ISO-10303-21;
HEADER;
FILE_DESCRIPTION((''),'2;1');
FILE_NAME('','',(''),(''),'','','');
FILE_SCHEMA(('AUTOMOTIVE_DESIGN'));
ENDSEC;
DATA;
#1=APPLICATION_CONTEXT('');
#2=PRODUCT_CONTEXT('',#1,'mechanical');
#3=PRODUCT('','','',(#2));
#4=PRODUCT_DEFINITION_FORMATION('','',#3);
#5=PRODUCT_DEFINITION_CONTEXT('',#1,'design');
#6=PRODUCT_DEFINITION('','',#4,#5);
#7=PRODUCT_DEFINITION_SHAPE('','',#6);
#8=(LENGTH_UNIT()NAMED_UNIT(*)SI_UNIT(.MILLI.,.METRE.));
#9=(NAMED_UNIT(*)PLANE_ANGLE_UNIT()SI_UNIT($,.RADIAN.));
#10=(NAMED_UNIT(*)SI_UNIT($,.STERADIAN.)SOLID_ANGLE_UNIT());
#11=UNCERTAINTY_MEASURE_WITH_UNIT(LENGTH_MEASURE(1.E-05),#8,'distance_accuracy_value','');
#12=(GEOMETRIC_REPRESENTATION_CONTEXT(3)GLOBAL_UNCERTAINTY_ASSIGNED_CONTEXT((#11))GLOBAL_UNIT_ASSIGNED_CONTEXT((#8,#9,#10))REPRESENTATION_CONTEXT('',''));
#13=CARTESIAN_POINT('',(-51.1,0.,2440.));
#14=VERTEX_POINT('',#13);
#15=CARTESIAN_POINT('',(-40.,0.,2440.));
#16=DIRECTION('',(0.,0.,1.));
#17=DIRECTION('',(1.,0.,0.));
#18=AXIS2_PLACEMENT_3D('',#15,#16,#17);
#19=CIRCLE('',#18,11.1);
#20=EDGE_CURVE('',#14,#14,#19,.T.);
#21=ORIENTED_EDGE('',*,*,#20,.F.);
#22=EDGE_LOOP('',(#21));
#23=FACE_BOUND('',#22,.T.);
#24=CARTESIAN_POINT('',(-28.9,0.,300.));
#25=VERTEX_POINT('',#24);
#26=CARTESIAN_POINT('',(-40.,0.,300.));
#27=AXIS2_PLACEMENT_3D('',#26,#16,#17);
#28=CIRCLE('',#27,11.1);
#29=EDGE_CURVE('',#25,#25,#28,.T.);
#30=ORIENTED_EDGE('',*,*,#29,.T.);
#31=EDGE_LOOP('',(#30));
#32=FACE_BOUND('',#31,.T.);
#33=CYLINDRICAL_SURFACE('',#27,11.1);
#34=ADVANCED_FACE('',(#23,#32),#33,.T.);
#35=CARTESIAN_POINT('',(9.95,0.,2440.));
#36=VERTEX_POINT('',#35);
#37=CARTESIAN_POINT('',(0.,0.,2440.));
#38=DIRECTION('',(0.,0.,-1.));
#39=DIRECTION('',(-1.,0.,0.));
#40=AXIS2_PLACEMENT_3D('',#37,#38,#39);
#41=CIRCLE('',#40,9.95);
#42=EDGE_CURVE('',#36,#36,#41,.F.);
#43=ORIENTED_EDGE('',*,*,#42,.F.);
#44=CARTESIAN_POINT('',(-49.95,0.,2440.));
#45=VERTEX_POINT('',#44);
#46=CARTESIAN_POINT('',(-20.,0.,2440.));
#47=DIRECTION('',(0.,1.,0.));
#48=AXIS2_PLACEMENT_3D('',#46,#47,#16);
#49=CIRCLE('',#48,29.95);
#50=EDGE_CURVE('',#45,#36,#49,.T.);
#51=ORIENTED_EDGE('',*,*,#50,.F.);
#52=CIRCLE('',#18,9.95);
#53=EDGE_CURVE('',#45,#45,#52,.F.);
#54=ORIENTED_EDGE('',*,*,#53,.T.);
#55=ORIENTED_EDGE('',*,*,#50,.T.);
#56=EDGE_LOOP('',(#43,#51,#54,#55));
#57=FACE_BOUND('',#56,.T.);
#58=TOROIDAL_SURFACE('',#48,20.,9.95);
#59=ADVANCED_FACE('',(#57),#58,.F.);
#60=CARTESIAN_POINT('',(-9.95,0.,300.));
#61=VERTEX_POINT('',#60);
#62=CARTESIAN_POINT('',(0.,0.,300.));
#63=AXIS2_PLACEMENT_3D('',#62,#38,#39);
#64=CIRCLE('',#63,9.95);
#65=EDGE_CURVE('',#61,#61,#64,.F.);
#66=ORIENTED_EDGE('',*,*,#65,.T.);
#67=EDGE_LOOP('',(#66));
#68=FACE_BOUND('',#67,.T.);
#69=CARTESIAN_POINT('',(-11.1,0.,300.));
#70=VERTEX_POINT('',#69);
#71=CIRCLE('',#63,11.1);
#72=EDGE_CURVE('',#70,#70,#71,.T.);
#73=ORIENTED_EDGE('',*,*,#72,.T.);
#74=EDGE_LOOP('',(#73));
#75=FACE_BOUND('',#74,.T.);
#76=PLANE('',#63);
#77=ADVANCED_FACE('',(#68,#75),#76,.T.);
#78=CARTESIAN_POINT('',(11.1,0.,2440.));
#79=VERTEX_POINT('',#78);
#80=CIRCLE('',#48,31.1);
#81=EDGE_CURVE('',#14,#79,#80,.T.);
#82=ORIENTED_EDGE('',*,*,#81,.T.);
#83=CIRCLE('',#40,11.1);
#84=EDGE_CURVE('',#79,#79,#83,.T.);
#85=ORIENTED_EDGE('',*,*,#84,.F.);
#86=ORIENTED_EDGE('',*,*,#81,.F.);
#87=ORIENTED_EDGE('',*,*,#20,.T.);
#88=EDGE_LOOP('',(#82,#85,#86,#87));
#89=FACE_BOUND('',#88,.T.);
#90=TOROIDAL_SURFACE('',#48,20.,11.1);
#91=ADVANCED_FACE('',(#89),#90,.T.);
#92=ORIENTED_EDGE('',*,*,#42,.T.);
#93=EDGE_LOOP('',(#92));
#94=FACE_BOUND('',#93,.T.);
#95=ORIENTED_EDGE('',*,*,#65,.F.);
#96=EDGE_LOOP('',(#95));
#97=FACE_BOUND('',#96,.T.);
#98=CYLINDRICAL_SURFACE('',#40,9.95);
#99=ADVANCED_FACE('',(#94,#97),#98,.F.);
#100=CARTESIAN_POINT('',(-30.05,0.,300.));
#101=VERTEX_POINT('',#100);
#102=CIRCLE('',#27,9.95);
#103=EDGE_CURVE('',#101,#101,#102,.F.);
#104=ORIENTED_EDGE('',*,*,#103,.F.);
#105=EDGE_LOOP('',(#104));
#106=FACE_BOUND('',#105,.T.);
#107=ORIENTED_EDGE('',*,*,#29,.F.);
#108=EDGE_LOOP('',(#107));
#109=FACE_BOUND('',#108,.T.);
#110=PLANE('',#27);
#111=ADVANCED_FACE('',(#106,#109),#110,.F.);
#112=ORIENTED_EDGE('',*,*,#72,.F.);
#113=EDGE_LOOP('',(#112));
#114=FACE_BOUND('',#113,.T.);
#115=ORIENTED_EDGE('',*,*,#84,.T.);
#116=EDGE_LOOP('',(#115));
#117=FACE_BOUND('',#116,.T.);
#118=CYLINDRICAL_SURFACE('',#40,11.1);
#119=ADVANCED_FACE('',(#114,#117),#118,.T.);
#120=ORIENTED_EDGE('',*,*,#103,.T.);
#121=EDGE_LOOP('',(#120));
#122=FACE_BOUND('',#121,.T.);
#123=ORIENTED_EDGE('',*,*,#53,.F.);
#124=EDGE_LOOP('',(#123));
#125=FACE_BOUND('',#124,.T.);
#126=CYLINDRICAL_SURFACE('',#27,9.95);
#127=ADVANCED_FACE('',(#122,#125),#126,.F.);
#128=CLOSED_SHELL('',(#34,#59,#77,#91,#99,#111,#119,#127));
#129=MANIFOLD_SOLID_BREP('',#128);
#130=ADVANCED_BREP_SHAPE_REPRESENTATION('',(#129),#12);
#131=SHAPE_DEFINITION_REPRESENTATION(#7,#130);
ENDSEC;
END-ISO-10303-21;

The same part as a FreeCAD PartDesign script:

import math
import FreeCAD as App
import Part
import Sketcher
from FreeCAD import Vector

doc = App.newDocument("Part")
body = doc.addObject("PartDesign::Body", "Body")

sketch1 = body.newObject("Sketcher::SketchObject", "Sketch")
sketch1.AttachmentSupport = (doc.getObject("XY_Plane"), [""])
sketch1.MapMode = "FlatFace"
sketch1.AttachmentOffset = App.Placement(Vector(0, 0, 300), App.Rotation())
sketch1.addGeometry([
    Part.Circle(Vector(0, 0, 0), Vector(0, 0, 1), 11.1),
    Part.Circle(Vector(0, 0, 0), Vector(0, 0, 1), 9.95),
], False)
sketch1.addConstraint([
    Sketcher.Constraint("Coincident", 0, 3, -1, 1),
    Sketcher.Constraint("Coincident", 1, 3, -1, 1),
    Sketcher.Constraint("Diameter", 0, 22.2),
    Sketcher.Constraint("Diameter", 1, 19.9),
])

sketch2 = body.newObject("Sketcher::SketchObject", "Sketch001")
sketch2.AttachmentSupport = (doc.getObject("XZ_Plane"), [""])
sketch2.MapMode = "FlatFace"
sketch2.addGeometry([
    Part.LineSegment(Vector(0, 300, 0), Vector(0, 2440, 0)),
    Part.ArcOfCircle(Part.Circle(Vector(-20, 2440, 0), Vector(0, 0, 1), 20), math.radians(0), math.radians(180)),
    Part.LineSegment(Vector(-40, 2440, 0), Vector(-40, 300, 0)),
], False)
sketch2.addConstraint([
    Sketcher.Constraint("Tangent", 0, 2, 1, 1),
    Sketcher.Constraint("Tangent", 1, 2, 2, 1),
    Sketcher.Constraint("Vertical", 0),
    Sketcher.Constraint("Vertical", 2),
    Sketcher.Constraint("PointOnObject", 0, 1, -2),
    Sketcher.Constraint("Horizontal", 0, 1, 2, 2),
    Sketcher.Constraint("Radius", 1, 20.0),
    Sketcher.Constraint("DistanceY", 0, 1, 0, 2, 2140.0),
    Sketcher.Constraint("DistanceY", -1, 1, 1, 3, 2440.0),
])
doc.recompute()

additivepipe = body.newObject("PartDesign::AdditivePipe", "AdditivePipe")
additivepipe.Profile = sketch1
additivepipe.Spine = (sketch2, ["Edge1", "Edge2", "Edge3"])

doc.recompute()
